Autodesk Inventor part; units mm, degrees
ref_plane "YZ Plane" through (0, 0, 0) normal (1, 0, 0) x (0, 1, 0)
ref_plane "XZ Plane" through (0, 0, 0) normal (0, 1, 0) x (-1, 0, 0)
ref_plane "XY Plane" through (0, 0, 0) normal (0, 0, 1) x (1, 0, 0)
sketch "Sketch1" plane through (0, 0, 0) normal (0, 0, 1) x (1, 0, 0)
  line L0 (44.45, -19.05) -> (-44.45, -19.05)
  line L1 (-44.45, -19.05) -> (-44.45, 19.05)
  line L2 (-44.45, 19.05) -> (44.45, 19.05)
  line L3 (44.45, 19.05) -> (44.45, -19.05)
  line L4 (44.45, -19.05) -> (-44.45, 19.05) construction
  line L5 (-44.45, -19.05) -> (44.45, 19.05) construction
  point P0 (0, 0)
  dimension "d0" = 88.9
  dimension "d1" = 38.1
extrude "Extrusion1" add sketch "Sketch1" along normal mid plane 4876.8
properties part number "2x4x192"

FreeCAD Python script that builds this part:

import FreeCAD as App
import Part
import Sketcher
from FreeCAD import Vector
Q = App.Units.Quantity


def add_polygon(sketch, points):
    """Adds a closed chain of lines whose ends are joined by coincident constraints."""
    first, n = sketch.GeometryCount, len(points)
    for a, b in zip(points, points[1:] + points[:1]):
        sketch.addGeometry(Part.LineSegment(App.Vector(*a, 0), App.Vector(*b, 0)), False)
    for i in range(n):
        sketch.addConstraint(Sketcher.Constraint("Coincident", first + i, 2, first + (i + 1) % n, 1))

doc = App.newDocument("Part")
params = doc.addObject("Spreadsheet::Sheet", "Params")
for row, (alias, value) in enumerate([
    ("sketch1_width", "3.5 in"),
    ("sketch1_height", "1.5 in"),
    ("pad1_length", "192 in"),
], start=1):
    params.set(f"A{row}", alias)
    params.set(f"B{row}", "=" + value)
    params.setAlias(f"B{row}", alias)

body = doc.addObject("PartDesign::Body", "Body")

# Sketch on XY plane
sketch1 = body.newObject("Sketcher::SketchObject", "Sketch")
sketch1.AttachmentSupport = (doc.getObject("XY_Plane"), [""])
sketch1.MapMode = "FlatFace"
add_polygon(sketch1, [(-44, -19), (44, -19), (44, 19), (-44, 19)])  # lines 0-3
sketch1.addConstraint([
    Sketcher.Constraint("Horizontal", 0),
    Sketcher.Constraint("Vertical", 1),
    Sketcher.Constraint("Horizontal", 2),
    Sketcher.Constraint("Vertical", 3),
    Sketcher.Constraint("Symmetric", 0, 2, 2, 2, -1, 1),
    Sketcher.Constraint("DistanceX", 0, 1, 0, 2, Q("3.5 in")),
    Sketcher.Constraint("DistanceY", 1, 1, 1, 2, Q("1.5 in")),
])
sketch1.setExpression("Constraints[9]", "Params.sketch1_width")
sketch1.setExpression("Constraints[10]", "Params.sketch1_height")
pad1 = body.newObject("PartDesign::Pad", "Pad")
pad1.Profile = sketch1
pad1.setExpression("Length", "Params.pad1_length")
pad1.Midplane = True

doc.recompute()
